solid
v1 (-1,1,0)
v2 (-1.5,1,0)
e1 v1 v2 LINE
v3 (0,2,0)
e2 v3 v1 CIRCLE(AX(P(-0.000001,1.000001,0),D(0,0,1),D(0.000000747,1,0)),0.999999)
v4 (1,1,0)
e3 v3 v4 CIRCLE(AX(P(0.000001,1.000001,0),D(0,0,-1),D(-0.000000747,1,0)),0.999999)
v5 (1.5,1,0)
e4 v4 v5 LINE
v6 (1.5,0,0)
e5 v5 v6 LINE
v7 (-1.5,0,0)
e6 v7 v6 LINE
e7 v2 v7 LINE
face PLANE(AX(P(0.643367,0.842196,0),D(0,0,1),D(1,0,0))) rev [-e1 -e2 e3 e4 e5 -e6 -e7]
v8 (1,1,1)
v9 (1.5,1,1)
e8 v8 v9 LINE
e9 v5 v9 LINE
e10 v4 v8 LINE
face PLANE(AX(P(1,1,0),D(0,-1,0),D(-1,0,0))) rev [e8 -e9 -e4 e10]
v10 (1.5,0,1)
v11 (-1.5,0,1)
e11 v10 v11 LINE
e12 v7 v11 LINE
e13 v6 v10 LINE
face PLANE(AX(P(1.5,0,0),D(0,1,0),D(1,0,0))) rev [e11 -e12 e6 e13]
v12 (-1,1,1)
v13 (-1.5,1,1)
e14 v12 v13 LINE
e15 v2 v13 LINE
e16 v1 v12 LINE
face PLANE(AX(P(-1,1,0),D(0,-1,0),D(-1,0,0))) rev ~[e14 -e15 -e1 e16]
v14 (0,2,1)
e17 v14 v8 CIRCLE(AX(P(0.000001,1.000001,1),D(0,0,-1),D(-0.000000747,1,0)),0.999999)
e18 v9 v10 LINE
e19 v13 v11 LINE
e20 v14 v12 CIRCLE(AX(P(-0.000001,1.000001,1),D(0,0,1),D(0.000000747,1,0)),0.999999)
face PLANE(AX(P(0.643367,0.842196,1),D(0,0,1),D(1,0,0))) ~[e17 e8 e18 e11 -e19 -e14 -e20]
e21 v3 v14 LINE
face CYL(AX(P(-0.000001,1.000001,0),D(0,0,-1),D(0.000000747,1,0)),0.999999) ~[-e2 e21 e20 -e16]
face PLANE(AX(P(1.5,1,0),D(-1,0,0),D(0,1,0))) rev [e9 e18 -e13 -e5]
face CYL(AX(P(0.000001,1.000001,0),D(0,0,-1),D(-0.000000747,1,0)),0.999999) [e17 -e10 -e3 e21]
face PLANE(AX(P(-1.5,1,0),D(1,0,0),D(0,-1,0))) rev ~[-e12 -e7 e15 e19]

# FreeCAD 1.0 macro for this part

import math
import FreeCAD as App
import Part
import Sketcher

doc = App.newDocument("Part")
body = doc.addObject("PartDesign::Body", "Body")

# Sketch on XY plane
sketch1 = doc.addObject("Sketcher::SketchObject", "Sketch")
body.addObject(sketch1)
sketch1.AttachmentSupport = (doc.XY_Plane, [""])
sketch1.MapMode = "FlatFace"
sketch1.addGeometry(Part.LineSegment(App.Vector(-1.5, 0, 0), App.Vector(0, 0, 0)), False)
sketch1.addGeometry(Part.LineSegment(App.Vector(0, 0, 0), App.Vector(0, 2, 0)), False)
sketch1.addGeometry(Part.ArcOfCircle(Part.Circle(App.Vector(0, 1, 0), App.Vector(0, 0, 1), 1), math.radians(90), math.radians(180)), False)
sketch1.addGeometry(Part.LineSegment(App.Vector(-1, 1, 0), App.Vector(-1.5, 1, 0)), False)
sketch1.addGeometry(Part.LineSegment(App.Vector(-1.5, 1, 0), App.Vector(-1.5, 0, 0)), False)
sketch1.addConstraint(Sketcher.Constraint("Coincident", 0, 2, 1, 1))
sketch1.addConstraint(Sketcher.Constraint("Coincident", 1, 2, 2, 1))
sketch1.addConstraint(Sketcher.Constraint("Coincident", 2, 2, 3, 1))
sketch1.addConstraint(Sketcher.Constraint("Coincident", 3, 2, 4, 1))
sketch1.addConstraint(Sketcher.Constraint("Coincident", 4, 2, 0, 1))
sketch1.addConstraint(Sketcher.Constraint("Horizontal", 0))
sketch1.addConstraint(Sketcher.Constraint("Vertical", 1))
sketch1.addConstraint(Sketcher.Constraint("Horizontal", 3))
sketch1.addConstraint(Sketcher.Constraint("Vertical", 4))
sketch1.addConstraint(Sketcher.Constraint("Coincident", 0, 2, -1, 1))
sketch1.addConstraint(Sketcher.Constraint("PointOnObject", 2, 3, -2))
sketch1.addConstraint(Sketcher.Constraint("Radius", 2, 0.999999))
sketch1.addConstraint(Sketcher.Constraint("DistanceY", 1, 1, 1, 2, 2.0))
sketch1.addConstraint(Sketcher.Constraint("DistanceY", 4, 2, 4, 1, 1.0))
sketch1.addConstraint(Sketcher.Constraint("DistanceX", 0, 1, 0, 2, 1.5))
pad1 = doc.addObject("PartDesign::Pad", "Pad")
body.addObject(pad1)
pad1.Profile = sketch1
pad1.Length = 1
body2 = doc.addObject("PartDesign::Body", "Body001")
doc.recompute()

body2.BaseFeature = body
doc.recompute()

mirroring = doc.addObject("Part::Mirroring", "Mirroring")
mirroring.Source = body
mirroring.Base = App.Vector(0, 1, 0.5)
mirroring.Normal = App.Vector(1, 0, 0)
body3 = doc.addObject("PartDesign::Body", "Body002")
body3.BaseFeature = mirroring
boolean = doc.addObject("PartDesign::Boolean", "Boolean")
body2.addObject(boolean)
boolean.Type = "Fuse"
boolean.addObjects([body3])
doc.recompute()
mirroring.Visibility = False

doc.recompute()
